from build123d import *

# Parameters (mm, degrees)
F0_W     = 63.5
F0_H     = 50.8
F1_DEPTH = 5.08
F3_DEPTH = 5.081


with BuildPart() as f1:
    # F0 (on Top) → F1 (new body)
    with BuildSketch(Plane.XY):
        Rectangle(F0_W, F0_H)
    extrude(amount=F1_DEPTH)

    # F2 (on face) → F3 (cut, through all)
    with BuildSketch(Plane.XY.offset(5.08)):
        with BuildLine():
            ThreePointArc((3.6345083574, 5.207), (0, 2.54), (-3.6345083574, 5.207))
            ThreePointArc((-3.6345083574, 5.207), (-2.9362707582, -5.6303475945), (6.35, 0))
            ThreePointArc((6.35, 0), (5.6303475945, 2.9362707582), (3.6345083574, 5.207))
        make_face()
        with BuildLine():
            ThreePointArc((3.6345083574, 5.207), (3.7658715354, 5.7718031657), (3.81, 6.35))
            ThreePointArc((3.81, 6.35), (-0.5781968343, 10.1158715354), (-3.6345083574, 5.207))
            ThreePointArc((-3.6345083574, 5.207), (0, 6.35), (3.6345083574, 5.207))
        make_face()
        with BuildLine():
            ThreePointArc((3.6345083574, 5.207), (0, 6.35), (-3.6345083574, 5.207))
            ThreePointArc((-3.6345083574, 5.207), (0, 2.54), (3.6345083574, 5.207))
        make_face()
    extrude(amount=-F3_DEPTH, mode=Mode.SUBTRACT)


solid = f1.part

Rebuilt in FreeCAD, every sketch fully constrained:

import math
import FreeCAD as App
import Part
import Sketcher
from FreeCAD import Vector
Q = App.Units.Quantity

doc = App.newDocument("Part")
body = doc.addObject("PartDesign::Body", "Body")

# Sketch on XY plane
sketch1 = doc.addObject("Sketcher::SketchObject", "Sketch")
body.addObject(sketch1)
sketch1.AttachmentSupport = (doc.XY_Plane, [""])
sketch1.MapMode = "FlatFace"
sketch1.addGeometry([
    Part.LineSegment(Vector(-32, 25, 0), Vector(-32, -25, 0)),
    Part.LineSegment(Vector(-32, -25, 0), Vector(32, -25, 0)),
    Part.LineSegment(Vector(32, -25, 0), Vector(32, 25, 0)),
    Part.LineSegment(Vector(32, 25, 0), Vector(-32, 25, 0)),
], False)
sketch1.addConstraint([
    Sketcher.Constraint("Coincident", 0, 2, 1, 1),
    Sketcher.Constraint("Coincident", 1, 2, 2, 1),
    Sketcher.Constraint("Coincident", 2, 2, 3, 1),
    Sketcher.Constraint("Coincident", 3, 2, 0, 1),
    Sketcher.Constraint("Vertical", 0),
    Sketcher.Constraint("Horizontal", 1),
    Sketcher.Constraint("Vertical", 2),
    Sketcher.Constraint("Horizontal", 3),
    Sketcher.Constraint("Symmetric", 0, 2, 2, 2, -1, 1),
    Sketcher.Constraint("DistanceY", 0, 2, 0, 1, Q("2 in")),
    Sketcher.Constraint("DistanceX", 1, 1, 1, 2, Q("2.5 in")),
])
pad1 = doc.addObject("PartDesign::Pad", "Pad")
body.addObject(pad1)
pad1.Profile = sketch1
pad1.Length = Q("0.2 in")

# Sketch on XY plane
sketch2 = doc.addObject("Sketcher::SketchObject", "Sketch001")
body.addObject(sketch2)
sketch2.AttachmentSupport = (doc.XY_Plane, [""])
sketch2.MapMode = "FlatFace"
sketch2.AttachmentOffset = App.Placement(Vector(0, 0, 0.2 * 25.4), App.Rotation())
sketch2.addGeometry([
    Part.ArcOfCircle(Part.Circle(Vector(0, 0, 0), Vector(0, 0, 1), 6.3), math.radians(125), math.radians(360)),
    Part.ArcOfCircle(Part.Circle(Vector(0, 0, 0), Vector(0, 0, 1), 6.3), math.radians(0), math.radians(55)),
    Part.ArcOfCircle(Part.Circle(Vector(0, 6.3, 0), Vector(0, 0, 1), 3.8), math.radians(-17.46), math.radians(0)),
    Part.ArcOfCircle(Part.Circle(Vector(0, 6.3, 0), Vector(0, 0, 1), 3.8), math.radians(0), math.radians(197)),
], False)
sketch2.addConstraint([
    Sketcher.Constraint("Tangent", 0, 2, 1, 1),
    Sketcher.Constraint("Coincident", 1, 2, 2, 1),
    Sketcher.Constraint("Tangent", 2, 2, 3, 1),
    Sketcher.Constraint("Coincident", 3, 2, 0, 1),
    Sketcher.Constraint("Coincident", 0, 3, -1, 1),
    Sketcher.Constraint("Equal", 0, 1),
    Sketcher.Constraint("Equal", 2, 3),
    Sketcher.Constraint("PointOnObject", 2, 3, -2),
    Sketcher.Constraint("PointOnObject", 0, 2, -1),
    Sketcher.Constraint("Horizontal", 3, 3, 2, 2),
    Sketcher.Constraint("Radius", 0, Q("0.25 in")),
    Sketcher.Constraint("Radius", 2, Q("0.15 in")),
    Sketcher.Constraint("DistanceY", -1, 1, 2, 3, Q("0.25 in")),
])
pocket1 = doc.addObject("PartDesign::Pocket", "Pocket")
body.addObject(pocket1)
pocket1.Profile = sketch2
pocket1.Type = "ThroughAll"

doc.recompute()
